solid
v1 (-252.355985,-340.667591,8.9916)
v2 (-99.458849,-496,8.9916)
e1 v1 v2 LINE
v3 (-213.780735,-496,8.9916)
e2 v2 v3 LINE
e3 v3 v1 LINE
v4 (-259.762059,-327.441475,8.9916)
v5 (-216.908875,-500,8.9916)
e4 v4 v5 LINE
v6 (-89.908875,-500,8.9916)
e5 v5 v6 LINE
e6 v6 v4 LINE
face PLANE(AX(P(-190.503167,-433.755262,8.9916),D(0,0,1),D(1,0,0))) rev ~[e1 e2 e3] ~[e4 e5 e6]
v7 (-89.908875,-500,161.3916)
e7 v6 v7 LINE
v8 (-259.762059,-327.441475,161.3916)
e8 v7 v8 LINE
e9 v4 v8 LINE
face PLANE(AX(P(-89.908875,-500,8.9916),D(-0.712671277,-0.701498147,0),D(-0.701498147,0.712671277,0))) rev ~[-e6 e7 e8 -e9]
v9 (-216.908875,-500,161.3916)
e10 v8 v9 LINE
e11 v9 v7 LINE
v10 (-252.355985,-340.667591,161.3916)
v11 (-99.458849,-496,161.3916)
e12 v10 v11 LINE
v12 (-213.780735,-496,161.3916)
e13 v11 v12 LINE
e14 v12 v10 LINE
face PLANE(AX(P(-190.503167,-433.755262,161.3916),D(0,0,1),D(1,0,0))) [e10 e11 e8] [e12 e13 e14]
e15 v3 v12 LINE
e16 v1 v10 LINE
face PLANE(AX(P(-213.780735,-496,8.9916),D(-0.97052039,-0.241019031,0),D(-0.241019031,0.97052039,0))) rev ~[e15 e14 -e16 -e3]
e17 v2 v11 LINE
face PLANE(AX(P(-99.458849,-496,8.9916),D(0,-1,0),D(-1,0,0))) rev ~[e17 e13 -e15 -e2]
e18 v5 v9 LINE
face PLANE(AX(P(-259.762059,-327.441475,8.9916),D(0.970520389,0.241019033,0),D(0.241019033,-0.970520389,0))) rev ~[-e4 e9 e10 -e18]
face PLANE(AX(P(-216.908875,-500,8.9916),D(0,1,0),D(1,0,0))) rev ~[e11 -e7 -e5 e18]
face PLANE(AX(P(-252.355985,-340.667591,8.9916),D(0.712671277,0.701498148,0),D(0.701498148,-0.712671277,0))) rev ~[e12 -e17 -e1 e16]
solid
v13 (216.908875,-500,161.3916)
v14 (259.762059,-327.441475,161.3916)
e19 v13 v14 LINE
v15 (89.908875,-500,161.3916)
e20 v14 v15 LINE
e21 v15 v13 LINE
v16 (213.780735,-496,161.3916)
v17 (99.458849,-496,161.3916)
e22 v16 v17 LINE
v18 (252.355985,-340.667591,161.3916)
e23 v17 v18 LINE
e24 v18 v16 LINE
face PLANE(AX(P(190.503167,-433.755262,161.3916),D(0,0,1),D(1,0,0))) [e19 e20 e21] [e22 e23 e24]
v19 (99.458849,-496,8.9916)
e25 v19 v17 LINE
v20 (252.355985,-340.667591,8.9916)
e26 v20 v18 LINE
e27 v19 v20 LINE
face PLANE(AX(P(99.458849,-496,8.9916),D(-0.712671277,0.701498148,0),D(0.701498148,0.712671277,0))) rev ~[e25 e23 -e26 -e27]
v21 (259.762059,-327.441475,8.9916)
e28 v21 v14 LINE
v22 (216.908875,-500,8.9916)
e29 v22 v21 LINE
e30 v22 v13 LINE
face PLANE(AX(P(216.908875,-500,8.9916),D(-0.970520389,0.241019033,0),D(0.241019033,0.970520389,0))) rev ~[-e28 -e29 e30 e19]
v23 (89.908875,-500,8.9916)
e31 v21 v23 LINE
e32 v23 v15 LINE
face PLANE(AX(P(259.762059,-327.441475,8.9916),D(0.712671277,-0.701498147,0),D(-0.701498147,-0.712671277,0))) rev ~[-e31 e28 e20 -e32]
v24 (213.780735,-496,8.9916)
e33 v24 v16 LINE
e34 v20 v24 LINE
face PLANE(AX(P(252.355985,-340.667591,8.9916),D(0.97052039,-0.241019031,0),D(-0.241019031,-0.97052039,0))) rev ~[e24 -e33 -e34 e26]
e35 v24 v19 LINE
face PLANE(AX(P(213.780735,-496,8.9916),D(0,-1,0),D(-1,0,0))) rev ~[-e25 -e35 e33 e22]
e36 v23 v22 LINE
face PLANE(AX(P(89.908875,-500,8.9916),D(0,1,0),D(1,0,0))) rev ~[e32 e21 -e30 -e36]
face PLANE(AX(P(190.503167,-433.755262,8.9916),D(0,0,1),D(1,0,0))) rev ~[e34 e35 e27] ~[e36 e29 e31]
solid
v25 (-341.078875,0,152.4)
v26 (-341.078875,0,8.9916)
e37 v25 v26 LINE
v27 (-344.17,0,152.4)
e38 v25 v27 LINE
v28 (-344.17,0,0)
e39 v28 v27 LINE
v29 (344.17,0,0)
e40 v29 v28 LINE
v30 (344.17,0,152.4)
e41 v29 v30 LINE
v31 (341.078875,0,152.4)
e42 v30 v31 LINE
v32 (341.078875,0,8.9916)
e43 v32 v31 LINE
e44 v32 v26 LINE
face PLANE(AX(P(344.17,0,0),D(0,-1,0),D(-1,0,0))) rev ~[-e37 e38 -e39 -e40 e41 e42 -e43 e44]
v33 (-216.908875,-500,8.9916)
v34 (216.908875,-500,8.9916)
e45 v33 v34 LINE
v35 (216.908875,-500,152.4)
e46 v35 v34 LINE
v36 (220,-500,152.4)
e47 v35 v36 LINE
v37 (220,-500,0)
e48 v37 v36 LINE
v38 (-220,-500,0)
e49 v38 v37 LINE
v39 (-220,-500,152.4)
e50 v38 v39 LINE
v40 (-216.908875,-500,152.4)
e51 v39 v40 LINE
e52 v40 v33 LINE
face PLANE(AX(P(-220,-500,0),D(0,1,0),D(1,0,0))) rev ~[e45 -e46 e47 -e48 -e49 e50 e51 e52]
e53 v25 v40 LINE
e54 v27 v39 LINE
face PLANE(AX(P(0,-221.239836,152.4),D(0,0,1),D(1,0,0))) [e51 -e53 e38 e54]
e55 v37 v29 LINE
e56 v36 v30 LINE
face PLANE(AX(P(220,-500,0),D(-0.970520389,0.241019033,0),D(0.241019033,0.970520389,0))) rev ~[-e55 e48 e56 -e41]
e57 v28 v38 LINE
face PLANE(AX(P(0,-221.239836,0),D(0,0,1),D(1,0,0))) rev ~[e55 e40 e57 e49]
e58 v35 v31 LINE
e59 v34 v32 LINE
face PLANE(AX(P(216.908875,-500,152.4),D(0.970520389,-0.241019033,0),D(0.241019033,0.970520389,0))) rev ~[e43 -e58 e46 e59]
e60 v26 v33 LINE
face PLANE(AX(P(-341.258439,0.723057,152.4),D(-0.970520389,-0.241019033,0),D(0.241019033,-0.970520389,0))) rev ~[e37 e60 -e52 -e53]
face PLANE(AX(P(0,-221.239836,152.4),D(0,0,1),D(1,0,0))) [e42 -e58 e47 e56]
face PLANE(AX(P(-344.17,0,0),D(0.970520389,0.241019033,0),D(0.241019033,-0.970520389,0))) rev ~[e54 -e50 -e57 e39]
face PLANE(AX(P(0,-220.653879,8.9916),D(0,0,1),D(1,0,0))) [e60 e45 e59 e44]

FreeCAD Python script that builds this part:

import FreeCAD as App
import Part
import Sketcher
from FreeCAD import Vector
Q = App.Units.Quantity

doc = App.newDocument("Part")
body = doc.addObject("PartDesign::Body", "Body")

# Sketch on XY plane
sketch1 = body.newObject("Sketcher::SketchObject", "Sketch")
sketch1.AttachmentSupport = (doc.getObject("XY_Plane"), [""])
sketch1.MapMode = "FlatFace"
sketch1.addGeometry([
    Part.LineSegment(Vector(344, 0, 0), Vector(-344, 0, 0)),
    Part.LineSegment(Vector(-344, 0, 0), Vector(-220, -500, 0)),
    Part.LineSegment(Vector(-220, -500, 0), Vector(220, -500, 0)),
    Part.LineSegment(Vector(220, -500, 0), Vector(344, 0, 0)),
], False)
sketch1.addConstraint([
    Sketcher.Constraint("Coincident", 0, 2, 1, 1),
    Sketcher.Constraint("Coincident", 1, 2, 2, 1),
    Sketcher.Constraint("Coincident", 2, 2, 3, 1),
    Sketcher.Constraint("Coincident", 3, 2, 0, 1),
    Sketcher.Constraint("Horizontal", 0),
    Sketcher.Constraint("Horizontal", 2),
    Sketcher.Constraint("Symmetric", 0, 2, 3, 2, -1, 1),
    Sketcher.Constraint("Equal", 1, 3),
    Sketcher.Constraint("DistanceX", 0, 2, 0, 1, Q("27.1 in")),
    Sketcher.Constraint("DistanceX", 2, 1, 2, 2, 440.0),
    Sketcher.Constraint("DistanceY", 1, 2, -1, 1, 500.0),
])
pad1 = body.newObject("PartDesign::Pad", "Pad")
pad1.Profile = sketch1
pad1.Length = Q("6 in")

# Sketch on XY plane
sketch2 = body.newObject("Sketcher::SketchObject", "Sketch001")
sketch2.AttachmentSupport = (doc.getObject("XY_Plane"), [""])
sketch2.MapMode = "FlatFace"
sketch2.AttachmentOffset = App.Placement(Vector(0, 0, 6 * 25.4), App.Rotation())
sketch2.addGeometry([
    Part.LineSegment(Vector(-341, 1, 0), Vector(-217, -500, 0)),
    Part.LineSegment(Vector(-217, -500, 0), Vector(217, -500, 0)),
    Part.LineSegment(Vector(217, -500, 0), Vector(341, 1, 0)),
    Part.LineSegment(Vector(341, 1, 0), Vector(-341, 1, 0)),
], False)
sketch2.addConstraint([
    Sketcher.Constraint("Coincident", 0, 2, 1, 1),
    Sketcher.Constraint("Coincident", 1, 2, 2, 1),
    Sketcher.Constraint("Coincident", 2, 2, 3, 1),
    Sketcher.Constraint("Coincident", 3, 2, 0, 1),
    Sketcher.Constraint("Horizontal", 1),
    Sketcher.Constraint("Horizontal", 3),
    Sketcher.Constraint("Equal", 0, 2),
    Sketcher.Constraint("DistanceX", 1, 1, 1, 2, 433.81775),
    Sketcher.Constraint("DistanceX", 3, 2, 3, 1, 682.516878),
    Sketcher.Constraint("DistanceY", 0, 2, -1, 1, 500.0),
    Sketcher.Constraint("DistanceX", -1, 1, 2, 2, 341.258439),
    Sketcher.Constraint("Distance", 0, 515.932548),
])
pocket1 = body.newObject("PartDesign::Pocket", "Pocket")
pocket1.Profile = sketch2
pocket1.Length = Q("5.646 in")
body2 = doc.addObject("PartDesign::Body", "Body001")
body2.AllowCompound = True

# Sketch on XY plane
sketch3 = body2.newObject("Sketcher::SketchObject", "Sketch002")
sketch3.AttachmentSupport = (doc.getObject("XY_Plane001"), [""])
sketch3.MapMode = "FlatFace"
sketch3.AttachmentOffset = App.Placement(Vector(0, 0, 0.354 * 25.4), App.Rotation())
sketch3.addGeometry([
    Part.LineSegment(Vector(90, -500, 0), Vector(217, -500, 0)),  # 0
    Part.LineSegment(Vector(217, -500, 0), Vector(260, -327, 0)),  # 1
    Part.LineSegment(Vector(260, -327, 0), Vector(90, -500, 0)),  # 2
    Part.LineSegment(Vector(252, -341, 0), Vector(214, -496, 0)),  # 3
    Part.LineSegment(Vector(214, -496, 0), Vector(99, -496, 0)),  # 4
    Part.LineSegment(Vector(99, -496, 0), Vector(252, -341, 0)),  # 5
    Part.LineSegment(Vector(-260, -327, 0), Vector(-217, -500, 0)),  # 6
    Part.LineSegment(Vector(-217, -500, 0), Vector(-90, -500, 0)),  # 7
    Part.LineSegment(Vector(-90, -500, 0), Vector(-260, -327, 0)),  # 8
    Part.LineSegment(Vector(-214, -496, 0), Vector(-252, -341, 0)),  # 9
    Part.LineSegment(Vector(-252, -341, 0), Vector(-99, -496, 0)),  # 10
    Part.LineSegment(Vector(-99, -496, 0), Vector(-214, -496, 0)),  # 11
], False)
sketch3.addConstraint([
    Sketcher.Constraint("Coincident", 0, 2, 1, 1),
    Sketcher.Constraint("Coincident", 1, 2, 2, 1),
    Sketcher.Constraint("Coincident", 2, 2, 0, 1),
    Sketcher.Constraint("Coincident", 3, 2, 4, 1),
    Sketcher.Constraint("Coincident", 4, 2, 5, 1),
    Sketcher.Constraint("Coincident", 5, 2, 3, 1),
    Sketcher.Constraint("Coincident", 6, 2, 7, 1),
    Sketcher.Constraint("Coincident", 7, 2, 8, 1),
    Sketcher.Constraint("Coincident", 8, 2, 6, 1),
    Sketcher.Constraint("Coincident", 9, 2, 10, 1),
    Sketcher.Constraint("Coincident", 10, 2, 11, 1),
    Sketcher.Constraint("Coincident", 11, 2, 9, 1),
    Sketcher.Constraint("Horizontal", 0),
    Sketcher.Constraint("Horizontal", 4),
    Sketcher.Constraint("Horizontal", 7),
    Sketcher.Constraint("Horizontal", 11),
    Sketcher.Constraint("Symmetric", 0, 2, 6, 2, -2),
    Sketcher.Constraint("Symmetric", 1, 2, 8, 2, -2),
    Sketcher.Constraint("Symmetric", 5, 2, 9, 2, -2),
    Sketcher.Constraint("Symmetric", 4, 2, 10, 2, -2),
    Sketcher.Constraint("Parallel", 1, 3),
    Sketcher.Constraint("Parallel", 2, 5),
    Sketcher.Constraint("Parallel", 6, 9),
    Sketcher.Constraint("Parallel", 8, 10),
    Sketcher.Constraint("DistanceX", 0, 1, 0, 2, Q("5 in")),
    Sketcher.Constraint("Distance", 1, Q("7 in")),
    Sketcher.Constraint("Distance", 2, 242.129198),
    Sketcher.Constraint("DistanceY", 0, 2, -1, 1, 500.0),
    Sketcher.Constraint("DistanceY", 3, 2, -1, 1, 496.0),
    Sketcher.Constraint("DistanceX", 10, 2, 4, 2, 198.917698),
    Sketcher.Constraint("Distance", 3, 160.050639),
    Sketcher.Constraint("DistanceX", -1, 1, 1, 2, 259.762059),
])
pad2 = body2.newObject("PartDesign::Pad", "Pad001")
pad2.Profile = sketch3
pad2.Length = Q("6 in")

doc.recompute()
